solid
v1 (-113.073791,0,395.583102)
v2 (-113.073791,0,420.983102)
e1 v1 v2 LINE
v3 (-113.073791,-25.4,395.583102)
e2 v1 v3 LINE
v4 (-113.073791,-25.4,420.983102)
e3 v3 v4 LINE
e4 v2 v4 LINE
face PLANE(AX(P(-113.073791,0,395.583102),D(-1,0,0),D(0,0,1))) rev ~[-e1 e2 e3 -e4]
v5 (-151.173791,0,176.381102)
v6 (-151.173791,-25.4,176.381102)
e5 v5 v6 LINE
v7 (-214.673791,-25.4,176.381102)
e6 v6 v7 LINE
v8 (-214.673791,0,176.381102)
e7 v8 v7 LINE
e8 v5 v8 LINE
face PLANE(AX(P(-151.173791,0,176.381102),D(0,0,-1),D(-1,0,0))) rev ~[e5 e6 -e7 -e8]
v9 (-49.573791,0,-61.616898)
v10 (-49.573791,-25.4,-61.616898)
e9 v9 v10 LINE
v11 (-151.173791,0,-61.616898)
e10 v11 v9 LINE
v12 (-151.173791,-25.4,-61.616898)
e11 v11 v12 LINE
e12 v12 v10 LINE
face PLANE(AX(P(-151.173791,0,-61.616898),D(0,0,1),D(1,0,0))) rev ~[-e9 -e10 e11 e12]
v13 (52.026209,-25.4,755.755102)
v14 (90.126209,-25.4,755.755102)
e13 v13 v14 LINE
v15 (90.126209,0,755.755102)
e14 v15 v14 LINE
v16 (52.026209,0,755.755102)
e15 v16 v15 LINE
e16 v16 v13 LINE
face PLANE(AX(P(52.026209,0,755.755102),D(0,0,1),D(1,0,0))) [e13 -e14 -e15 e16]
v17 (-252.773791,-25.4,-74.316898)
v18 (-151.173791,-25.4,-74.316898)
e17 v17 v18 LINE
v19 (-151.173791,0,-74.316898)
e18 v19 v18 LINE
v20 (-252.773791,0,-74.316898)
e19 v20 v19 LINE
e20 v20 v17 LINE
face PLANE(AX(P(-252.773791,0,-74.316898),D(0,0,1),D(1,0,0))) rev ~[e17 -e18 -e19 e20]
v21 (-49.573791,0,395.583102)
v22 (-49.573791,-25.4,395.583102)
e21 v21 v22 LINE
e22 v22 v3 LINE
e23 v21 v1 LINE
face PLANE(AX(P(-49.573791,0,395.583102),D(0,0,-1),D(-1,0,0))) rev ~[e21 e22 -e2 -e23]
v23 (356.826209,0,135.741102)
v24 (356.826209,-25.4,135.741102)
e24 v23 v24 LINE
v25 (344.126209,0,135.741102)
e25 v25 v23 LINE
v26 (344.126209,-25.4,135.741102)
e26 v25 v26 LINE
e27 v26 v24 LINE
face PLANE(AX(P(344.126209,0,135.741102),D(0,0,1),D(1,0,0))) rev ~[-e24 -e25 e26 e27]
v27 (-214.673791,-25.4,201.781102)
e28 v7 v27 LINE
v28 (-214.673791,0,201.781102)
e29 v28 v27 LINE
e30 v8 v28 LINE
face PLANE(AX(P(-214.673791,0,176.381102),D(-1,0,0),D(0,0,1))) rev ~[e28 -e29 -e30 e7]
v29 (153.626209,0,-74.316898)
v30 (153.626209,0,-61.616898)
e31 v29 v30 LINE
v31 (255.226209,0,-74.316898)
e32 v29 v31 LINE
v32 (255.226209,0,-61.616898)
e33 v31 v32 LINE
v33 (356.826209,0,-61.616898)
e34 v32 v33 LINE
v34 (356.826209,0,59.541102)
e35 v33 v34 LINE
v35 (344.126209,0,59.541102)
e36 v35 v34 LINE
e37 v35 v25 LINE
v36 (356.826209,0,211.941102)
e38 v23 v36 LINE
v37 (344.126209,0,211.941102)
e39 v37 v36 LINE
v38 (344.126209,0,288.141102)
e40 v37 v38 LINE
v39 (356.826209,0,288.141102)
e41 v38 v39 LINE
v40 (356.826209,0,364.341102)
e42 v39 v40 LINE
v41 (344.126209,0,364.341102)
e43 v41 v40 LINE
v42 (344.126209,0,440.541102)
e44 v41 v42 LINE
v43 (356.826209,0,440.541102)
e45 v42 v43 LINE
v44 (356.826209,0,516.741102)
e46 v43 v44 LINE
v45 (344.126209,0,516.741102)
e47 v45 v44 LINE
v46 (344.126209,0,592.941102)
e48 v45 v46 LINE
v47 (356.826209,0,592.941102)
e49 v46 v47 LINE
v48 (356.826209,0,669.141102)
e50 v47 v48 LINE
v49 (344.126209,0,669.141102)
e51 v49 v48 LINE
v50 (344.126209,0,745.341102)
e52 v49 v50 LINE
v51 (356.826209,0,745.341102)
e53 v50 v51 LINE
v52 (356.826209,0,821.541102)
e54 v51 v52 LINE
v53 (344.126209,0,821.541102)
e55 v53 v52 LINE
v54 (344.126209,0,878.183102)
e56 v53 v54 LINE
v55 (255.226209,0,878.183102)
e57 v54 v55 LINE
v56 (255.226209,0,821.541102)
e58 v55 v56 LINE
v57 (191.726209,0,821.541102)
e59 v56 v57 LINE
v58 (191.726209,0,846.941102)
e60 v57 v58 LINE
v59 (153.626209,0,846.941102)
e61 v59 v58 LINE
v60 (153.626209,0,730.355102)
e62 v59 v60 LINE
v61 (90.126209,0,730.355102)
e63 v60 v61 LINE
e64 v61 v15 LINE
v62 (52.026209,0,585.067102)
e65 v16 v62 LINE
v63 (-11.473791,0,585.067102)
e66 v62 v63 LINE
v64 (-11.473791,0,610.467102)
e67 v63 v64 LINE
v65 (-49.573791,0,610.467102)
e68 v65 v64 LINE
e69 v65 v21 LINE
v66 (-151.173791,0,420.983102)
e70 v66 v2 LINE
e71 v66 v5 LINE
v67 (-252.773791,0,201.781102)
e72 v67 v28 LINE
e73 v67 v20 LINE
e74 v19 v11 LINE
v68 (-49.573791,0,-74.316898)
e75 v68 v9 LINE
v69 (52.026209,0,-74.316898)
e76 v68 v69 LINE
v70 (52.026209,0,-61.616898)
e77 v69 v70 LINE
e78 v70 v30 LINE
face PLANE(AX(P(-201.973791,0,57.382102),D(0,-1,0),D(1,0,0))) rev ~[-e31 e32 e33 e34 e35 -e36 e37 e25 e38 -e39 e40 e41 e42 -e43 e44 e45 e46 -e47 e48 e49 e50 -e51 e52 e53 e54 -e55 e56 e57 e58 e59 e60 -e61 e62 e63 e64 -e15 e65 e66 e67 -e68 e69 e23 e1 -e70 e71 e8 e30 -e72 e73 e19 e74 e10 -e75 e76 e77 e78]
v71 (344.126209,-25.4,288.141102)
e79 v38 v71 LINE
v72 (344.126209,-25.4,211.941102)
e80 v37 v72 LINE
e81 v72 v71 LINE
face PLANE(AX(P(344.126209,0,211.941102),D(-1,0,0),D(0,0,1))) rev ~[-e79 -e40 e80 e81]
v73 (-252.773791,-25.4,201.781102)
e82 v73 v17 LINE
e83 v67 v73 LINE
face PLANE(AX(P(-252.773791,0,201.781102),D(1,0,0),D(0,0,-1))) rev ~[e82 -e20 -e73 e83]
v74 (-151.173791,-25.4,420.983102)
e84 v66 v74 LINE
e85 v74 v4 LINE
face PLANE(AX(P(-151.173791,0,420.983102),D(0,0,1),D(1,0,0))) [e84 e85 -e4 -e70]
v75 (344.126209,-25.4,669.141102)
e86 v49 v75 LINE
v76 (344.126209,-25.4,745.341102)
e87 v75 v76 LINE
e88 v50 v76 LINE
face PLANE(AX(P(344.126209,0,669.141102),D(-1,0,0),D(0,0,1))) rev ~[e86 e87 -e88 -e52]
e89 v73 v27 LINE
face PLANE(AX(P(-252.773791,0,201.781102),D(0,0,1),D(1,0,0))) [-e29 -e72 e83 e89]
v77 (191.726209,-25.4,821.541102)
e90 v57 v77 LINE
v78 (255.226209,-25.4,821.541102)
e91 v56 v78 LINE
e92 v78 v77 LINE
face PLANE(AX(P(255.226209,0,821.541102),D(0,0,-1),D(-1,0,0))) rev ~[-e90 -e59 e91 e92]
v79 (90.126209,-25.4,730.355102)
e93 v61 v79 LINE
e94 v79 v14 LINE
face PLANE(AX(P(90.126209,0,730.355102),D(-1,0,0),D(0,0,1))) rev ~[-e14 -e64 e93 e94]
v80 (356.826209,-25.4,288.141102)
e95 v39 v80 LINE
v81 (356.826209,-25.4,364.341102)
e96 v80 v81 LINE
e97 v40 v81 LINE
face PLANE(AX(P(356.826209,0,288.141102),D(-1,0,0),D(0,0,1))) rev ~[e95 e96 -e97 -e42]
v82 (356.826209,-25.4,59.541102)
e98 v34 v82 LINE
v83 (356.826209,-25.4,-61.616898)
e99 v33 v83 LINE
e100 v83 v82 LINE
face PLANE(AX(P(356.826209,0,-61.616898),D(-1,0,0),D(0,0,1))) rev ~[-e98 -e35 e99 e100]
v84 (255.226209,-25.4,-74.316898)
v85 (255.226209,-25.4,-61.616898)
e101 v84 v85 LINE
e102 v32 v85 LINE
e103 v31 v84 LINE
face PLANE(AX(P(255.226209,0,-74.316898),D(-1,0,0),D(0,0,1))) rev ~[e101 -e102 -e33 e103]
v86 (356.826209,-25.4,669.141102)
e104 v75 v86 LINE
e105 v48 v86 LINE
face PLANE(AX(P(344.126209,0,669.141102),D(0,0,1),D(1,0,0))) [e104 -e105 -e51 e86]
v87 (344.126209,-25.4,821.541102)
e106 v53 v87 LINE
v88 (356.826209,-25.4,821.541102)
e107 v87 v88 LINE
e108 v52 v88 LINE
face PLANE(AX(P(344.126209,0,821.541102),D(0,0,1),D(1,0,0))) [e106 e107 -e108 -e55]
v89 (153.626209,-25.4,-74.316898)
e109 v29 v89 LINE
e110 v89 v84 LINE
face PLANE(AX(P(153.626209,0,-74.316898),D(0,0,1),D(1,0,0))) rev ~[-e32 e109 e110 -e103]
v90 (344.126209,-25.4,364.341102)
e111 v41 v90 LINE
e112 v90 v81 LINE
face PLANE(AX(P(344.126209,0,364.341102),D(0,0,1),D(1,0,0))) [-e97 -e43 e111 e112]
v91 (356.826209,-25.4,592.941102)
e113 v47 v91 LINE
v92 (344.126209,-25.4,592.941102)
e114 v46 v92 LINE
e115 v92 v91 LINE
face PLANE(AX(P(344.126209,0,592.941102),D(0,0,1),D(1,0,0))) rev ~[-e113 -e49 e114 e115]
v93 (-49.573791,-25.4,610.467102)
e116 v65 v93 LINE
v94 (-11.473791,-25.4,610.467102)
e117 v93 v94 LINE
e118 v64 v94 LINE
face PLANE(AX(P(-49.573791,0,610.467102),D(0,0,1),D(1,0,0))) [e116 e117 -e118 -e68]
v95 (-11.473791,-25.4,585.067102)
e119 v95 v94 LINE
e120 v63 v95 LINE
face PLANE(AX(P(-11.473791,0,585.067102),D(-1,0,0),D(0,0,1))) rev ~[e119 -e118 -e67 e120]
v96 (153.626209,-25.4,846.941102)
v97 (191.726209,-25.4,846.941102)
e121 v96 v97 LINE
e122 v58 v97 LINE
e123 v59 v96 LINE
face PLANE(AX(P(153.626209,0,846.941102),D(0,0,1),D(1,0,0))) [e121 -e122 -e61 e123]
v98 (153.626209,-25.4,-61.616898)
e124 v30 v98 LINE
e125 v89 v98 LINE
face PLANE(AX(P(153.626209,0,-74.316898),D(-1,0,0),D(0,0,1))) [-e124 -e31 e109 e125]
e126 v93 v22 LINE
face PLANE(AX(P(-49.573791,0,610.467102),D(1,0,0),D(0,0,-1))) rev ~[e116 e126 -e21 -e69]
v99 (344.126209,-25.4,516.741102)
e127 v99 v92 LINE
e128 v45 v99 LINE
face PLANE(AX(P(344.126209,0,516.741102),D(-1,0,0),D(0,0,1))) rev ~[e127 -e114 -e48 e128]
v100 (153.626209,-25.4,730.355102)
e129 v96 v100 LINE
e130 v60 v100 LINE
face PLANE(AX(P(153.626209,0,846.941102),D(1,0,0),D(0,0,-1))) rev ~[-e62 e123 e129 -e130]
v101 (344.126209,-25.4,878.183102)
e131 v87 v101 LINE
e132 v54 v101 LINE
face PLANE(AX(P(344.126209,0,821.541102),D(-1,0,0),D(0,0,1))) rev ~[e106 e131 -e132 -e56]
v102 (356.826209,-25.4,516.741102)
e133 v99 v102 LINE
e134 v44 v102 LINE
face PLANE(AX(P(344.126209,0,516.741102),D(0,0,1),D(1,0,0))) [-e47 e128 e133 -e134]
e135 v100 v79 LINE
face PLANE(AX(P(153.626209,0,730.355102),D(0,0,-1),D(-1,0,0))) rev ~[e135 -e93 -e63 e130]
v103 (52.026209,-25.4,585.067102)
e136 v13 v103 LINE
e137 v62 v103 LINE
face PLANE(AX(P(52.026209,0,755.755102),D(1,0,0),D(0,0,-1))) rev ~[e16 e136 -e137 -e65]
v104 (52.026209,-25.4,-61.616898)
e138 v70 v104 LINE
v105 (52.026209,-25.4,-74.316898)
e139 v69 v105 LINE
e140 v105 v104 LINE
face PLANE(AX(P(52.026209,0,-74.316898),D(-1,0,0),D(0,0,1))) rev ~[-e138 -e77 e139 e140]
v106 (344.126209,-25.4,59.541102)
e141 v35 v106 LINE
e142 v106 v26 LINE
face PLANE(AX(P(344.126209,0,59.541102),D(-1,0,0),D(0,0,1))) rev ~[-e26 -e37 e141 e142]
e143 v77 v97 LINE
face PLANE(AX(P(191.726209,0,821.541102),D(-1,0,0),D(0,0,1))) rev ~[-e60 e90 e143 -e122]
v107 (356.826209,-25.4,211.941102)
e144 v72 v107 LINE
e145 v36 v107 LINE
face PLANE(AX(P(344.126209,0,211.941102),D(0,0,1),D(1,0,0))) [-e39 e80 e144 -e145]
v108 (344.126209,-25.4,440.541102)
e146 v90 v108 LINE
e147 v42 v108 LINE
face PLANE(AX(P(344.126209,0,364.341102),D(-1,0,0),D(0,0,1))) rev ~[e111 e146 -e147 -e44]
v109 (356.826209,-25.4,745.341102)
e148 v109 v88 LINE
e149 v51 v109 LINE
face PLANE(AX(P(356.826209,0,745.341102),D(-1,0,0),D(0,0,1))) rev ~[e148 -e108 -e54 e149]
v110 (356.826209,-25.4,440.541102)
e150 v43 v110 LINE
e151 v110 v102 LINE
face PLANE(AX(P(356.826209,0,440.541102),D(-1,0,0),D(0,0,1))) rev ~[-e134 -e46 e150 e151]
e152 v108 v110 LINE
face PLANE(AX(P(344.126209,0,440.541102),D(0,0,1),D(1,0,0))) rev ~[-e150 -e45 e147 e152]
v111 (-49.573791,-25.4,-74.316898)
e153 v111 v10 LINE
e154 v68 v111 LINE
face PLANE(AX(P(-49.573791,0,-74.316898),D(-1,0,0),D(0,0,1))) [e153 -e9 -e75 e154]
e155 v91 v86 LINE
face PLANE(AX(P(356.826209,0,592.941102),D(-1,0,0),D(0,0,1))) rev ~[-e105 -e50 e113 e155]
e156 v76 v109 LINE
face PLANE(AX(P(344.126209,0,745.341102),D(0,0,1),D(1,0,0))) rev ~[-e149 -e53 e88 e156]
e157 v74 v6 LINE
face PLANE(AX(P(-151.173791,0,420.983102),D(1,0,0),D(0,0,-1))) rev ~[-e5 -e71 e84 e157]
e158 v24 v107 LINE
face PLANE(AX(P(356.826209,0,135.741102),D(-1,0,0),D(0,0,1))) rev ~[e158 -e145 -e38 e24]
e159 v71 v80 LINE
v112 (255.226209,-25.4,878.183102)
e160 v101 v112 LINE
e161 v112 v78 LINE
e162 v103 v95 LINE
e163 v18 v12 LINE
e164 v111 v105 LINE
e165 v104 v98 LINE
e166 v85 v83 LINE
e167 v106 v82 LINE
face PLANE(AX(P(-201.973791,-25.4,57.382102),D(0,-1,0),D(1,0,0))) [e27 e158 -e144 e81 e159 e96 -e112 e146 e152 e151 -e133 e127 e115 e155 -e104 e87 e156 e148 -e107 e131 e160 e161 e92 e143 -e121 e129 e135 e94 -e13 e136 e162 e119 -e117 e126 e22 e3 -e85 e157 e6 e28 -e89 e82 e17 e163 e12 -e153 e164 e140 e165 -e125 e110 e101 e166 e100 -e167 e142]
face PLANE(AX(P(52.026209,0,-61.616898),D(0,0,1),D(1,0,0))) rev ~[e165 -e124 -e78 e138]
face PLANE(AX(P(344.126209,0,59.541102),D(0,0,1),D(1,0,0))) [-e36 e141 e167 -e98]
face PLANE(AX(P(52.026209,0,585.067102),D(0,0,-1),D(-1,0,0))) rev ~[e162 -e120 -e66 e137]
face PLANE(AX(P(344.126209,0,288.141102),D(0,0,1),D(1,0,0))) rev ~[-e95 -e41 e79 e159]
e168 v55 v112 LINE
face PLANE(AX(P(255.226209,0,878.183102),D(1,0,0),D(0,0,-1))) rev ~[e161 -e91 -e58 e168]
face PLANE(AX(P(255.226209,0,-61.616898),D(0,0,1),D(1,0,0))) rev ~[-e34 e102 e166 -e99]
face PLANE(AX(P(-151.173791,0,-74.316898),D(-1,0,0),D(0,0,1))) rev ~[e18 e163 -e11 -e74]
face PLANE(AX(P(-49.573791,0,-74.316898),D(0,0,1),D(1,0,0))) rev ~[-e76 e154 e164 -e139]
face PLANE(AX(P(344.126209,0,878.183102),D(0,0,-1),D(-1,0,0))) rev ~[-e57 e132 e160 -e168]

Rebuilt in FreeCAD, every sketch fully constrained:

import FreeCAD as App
import Part
import Sketcher
from FreeCAD import Vector
Q = App.Units.Quantity


def add_polygon(sketch, points):
    """Adds a closed chain of lines whose ends are joined by coincident constraints."""
    first, n = sketch.GeometryCount, len(points)
    for a, b in zip(points, points[1:] + points[:1]):
        sketch.addGeometry(Part.LineSegment(App.Vector(*a, 0), App.Vector(*b, 0)), False)
    for i in range(n):
        sketch.addConstraint(Sketcher.Constraint("Coincident", first + i, 2, first + (i + 1) % n, 1))

doc = App.newDocument("Part")
body = doc.addObject("PartDesign::Body", "Body")

# Sketch on XZ plane
sketch1 = body.newObject("Sketcher::SketchObject", "Sketch")
sketch1.AttachmentSupport = (doc.getObject("XZ_Plane"), [""])
sketch1.MapMode = "FlatFace"
add_polygon(sketch1, [(-253, -74), (-151, -74), (-151, -62), (-50, -62), (-50, -74), (52, -74), (52, -62), (154, -62), (154, -74), (255, -74), (255, -62), (357, -62), (357, 60), (344, 60), (344, 136), (357, 136), (357, 212), (344, 212), (344, 288), (357, 288), (357, 364), (344, 364), (344, 441), (357, 441), (357, 517), (344, 517), (344, 593), (357, 593), (357, 669), (344, 669), (344, 745), (357, 745), (357, 822), (344, 822), (344, 878), (255, 878), (255, 822), (192, 822), (192, 847), (154, 847), (154, 730), (90, 730), (90, 756), (52, 756), (52, 585), (-11, 585), (-11, 610), (-50, 610), (-50, 396), (-113, 396), (-113, 421), (-151, 421), (-151, 176), (-215, 176), (-215, 202), (-253, 202)])  # lines 0-55
sketch1.addConstraint([
    Sketcher.Constraint("Horizontal", 0),
    Sketcher.Constraint("Vertical", 1),
    Sketcher.Constraint("Horizontal", 2),
    Sketcher.Constraint("Vertical", 3),
    Sketcher.Constraint("Horizontal", 4),
    Sketcher.Constraint("Vertical", 5),
    Sketcher.Constraint("Horizontal", 6),
    Sketcher.Constraint("Vertical", 7),
    Sketcher.Constraint("Horizontal", 8),
    Sketcher.Constraint("Vertical", 9),
    Sketcher.Constraint("Horizontal", 10),
    Sketcher.Constraint("Vertical", 11),
    Sketcher.Constraint("Horizontal", 12),
    Sketcher.Constraint("Vertical", 13),
    Sketcher.Constraint("Horizontal", 14),
    Sketcher.Constraint("Vertical", 15),
    Sketcher.Constraint("Horizontal", 16),
    Sketcher.Constraint("Vertical", 17),
    Sketcher.Constraint("Horizontal", 18),
    Sketcher.Constraint("Vertical", 19),
    Sketcher.Constraint("Horizontal", 20),
    Sketcher.Constraint("Vertical", 21),
    Sketcher.Constraint("Horizontal", 22),
    Sketcher.Constraint("Vertical", 23),
    Sketcher.Constraint("Horizontal", 24),
    Sketcher.Constraint("Vertical", 25),
    Sketcher.Constraint("Horizontal", 26),
    Sketcher.Constraint("Vertical", 27),
    Sketcher.Constraint("Horizontal", 28),
    Sketcher.Constraint("Vertical", 29),
    Sketcher.Constraint("Horizontal", 30),
    Sketcher.Constraint("Vertical", 31),
    Sketcher.Constraint("Horizontal", 32),
    Sketcher.Constraint("Vertical", 33),
    Sketcher.Constraint("Horizontal", 34),
    Sketcher.Constraint("Vertical", 35),
    Sketcher.Constraint("Horizontal", 36),
    Sketcher.Constraint("Vertical", 37),
    Sketcher.Constraint("Horizontal", 38),
    Sketcher.Constraint("Vertical", 39),
    Sketcher.Constraint("Horizontal", 40),
    Sketcher.Constraint("Vertical", 41),
    Sketcher.Constraint("Horizontal", 42),
    Sketcher.Constraint("Vertical", 43),
    Sketcher.Constraint("Horizontal", 44),
    Sketcher.Constraint("Vertical", 45),
    Sketcher.Constraint("Horizontal", 46),
    Sketcher.Constraint("Vertical", 47),
    Sketcher.Constraint("Horizontal", 48),
    Sketcher.Constraint("Vertical", 49),
    Sketcher.Constraint("Horizontal", 50),
    Sketcher.Constraint("Vertical", 51),
    Sketcher.Constraint("Horizontal", 52),
    Sketcher.Constraint("Vertical", 53),
    Sketcher.Constraint("Horizontal", 54),
    Sketcher.Constraint("Vertical", 55),
    Sketcher.Constraint("Horizontal", 0, 2, 3, 2),
    Sketcher.Constraint("Horizontal", 2, 2, 5, 2),
    Sketcher.Constraint("Horizontal", 4, 2, 7, 2),
    Sketcher.Constraint("Horizontal", 6, 2, 9, 2),
    Sketcher.Constraint("Horizontal", 32, 2, 35, 2),
    Sketcher.Constraint("Vertical", 11, 2, 14, 2),
    Sketcher.Constraint("Vertical", 13, 2, 16, 2),
    Sketcher.Constraint("Vertical", 15, 2, 18, 2),
    Sketcher.Constraint("Vertical", 17, 2, 20, 2),
    Sketcher.Constraint("Vertical", 19, 2, 22, 2),
    Sketcher.Constraint("Vertical", 21, 2, 24, 2),
    Sketcher.Constraint("Vertical", 23, 2, 26, 2),
    Sketcher.Constraint("Vertical", 25, 2, 28, 2),
    Sketcher.Constraint("Vertical", 27, 2, 30, 2),
    Sketcher.Constraint("Vertical", 29, 2, 32, 2),
    Sketcher.Constraint("Vertical", 9, 2, 34, 2),
    Sketcher.Constraint("Vertical", 7, 2, 38, 2),
    Sketcher.Constraint("Vertical", 5, 2, 42, 2),
    Sketcher.Constraint("Vertical", 3, 2, 46, 2),
    Sketcher.Constraint("Vertical", 1, 2, 50, 2),
    Sketcher.Constraint("Equal", 0, 2),
    Sketcher.Constraint("Equal", 2, 4),
    Sketcher.Constraint("Equal", 4, 6),
    Sketcher.Constraint("Equal", 6, 8),
    Sketcher.Constraint("Equal", 8, 10),
    Sketcher.Constraint("Equal", 36, 40),
    Sketcher.Constraint("Equal", 40, 44),
    Sketcher.Constraint("Equal", 44, 48),
    Sketcher.Constraint("Equal", 48, 52),
    Sketcher.Constraint("Equal", 32, 1),
    Sketcher.Constraint("Equal", 13, 15),
    Sketcher.Constraint("Equal", 15, 17),
    Sketcher.Constraint("Equal", 17, 19),
    Sketcher.Constraint("Equal", 19, 21),
    Sketcher.Constraint("Equal", 21, 23),
    Sketcher.Constraint("Equal", 23, 25),
    Sketcher.Constraint("Equal", 25, 27),
    Sketcher.Constraint("Equal", 27, 29),
    Sketcher.Constraint("Equal", 29, 31),
    Sketcher.Constraint("Equal", 37, 41),
    Sketcher.Constraint("Equal", 41, 45),
    Sketcher.Constraint("Equal", 45, 49),
    Sketcher.Constraint("Equal", 49, 53),
    Sketcher.Constraint("DistanceX", 0, 1, 0, 2, Q("4 in")),
    Sketcher.Constraint("DistanceY", 13, 1, 13, 2, Q("3 in")),
    Sketcher.Constraint("DistanceY", 37, 1, 37, 2, Q("1 in")),
    Sketcher.Constraint("DistanceX", 12, 2, 12, 1, Q("0.5 in")),
    Sketcher.Constraint("DistanceX", 36, 2, 36, 1, Q("2.5 in")),
    Sketcher.Constraint("DistanceY", 11, 1, 11, 2, Q("4.77 in")),
    Sketcher.Constraint("DistanceY", 33, 1, 33, 2, Q("2.23 in")),
    Sketcher.Constraint("DistanceY", 39, 2, 39, 1, Q("4.59 in")),
    Sketcher.Constraint("DistanceY", 43, 2, 43, 1, Q("6.72 in")),
    Sketcher.Constraint("DistanceY", 47, 2, 47, 1, Q("8.46 in")),
    Sketcher.Constraint("DistanceY", 51, 2, 51, 1, Q("9.63 in")),
    Sketcher.Constraint("DistanceY", -1, 1, 15, 2, 211.941102),
    Sketcher.Constraint("DistanceX", 0, 2, -1, 1, 151.173791),
])
pad1 = body.newObject("PartDesign::Pad", "Pad")
pad1.Profile = sketch1
pad1.Length = Q("1 in")

doc.recompute()
